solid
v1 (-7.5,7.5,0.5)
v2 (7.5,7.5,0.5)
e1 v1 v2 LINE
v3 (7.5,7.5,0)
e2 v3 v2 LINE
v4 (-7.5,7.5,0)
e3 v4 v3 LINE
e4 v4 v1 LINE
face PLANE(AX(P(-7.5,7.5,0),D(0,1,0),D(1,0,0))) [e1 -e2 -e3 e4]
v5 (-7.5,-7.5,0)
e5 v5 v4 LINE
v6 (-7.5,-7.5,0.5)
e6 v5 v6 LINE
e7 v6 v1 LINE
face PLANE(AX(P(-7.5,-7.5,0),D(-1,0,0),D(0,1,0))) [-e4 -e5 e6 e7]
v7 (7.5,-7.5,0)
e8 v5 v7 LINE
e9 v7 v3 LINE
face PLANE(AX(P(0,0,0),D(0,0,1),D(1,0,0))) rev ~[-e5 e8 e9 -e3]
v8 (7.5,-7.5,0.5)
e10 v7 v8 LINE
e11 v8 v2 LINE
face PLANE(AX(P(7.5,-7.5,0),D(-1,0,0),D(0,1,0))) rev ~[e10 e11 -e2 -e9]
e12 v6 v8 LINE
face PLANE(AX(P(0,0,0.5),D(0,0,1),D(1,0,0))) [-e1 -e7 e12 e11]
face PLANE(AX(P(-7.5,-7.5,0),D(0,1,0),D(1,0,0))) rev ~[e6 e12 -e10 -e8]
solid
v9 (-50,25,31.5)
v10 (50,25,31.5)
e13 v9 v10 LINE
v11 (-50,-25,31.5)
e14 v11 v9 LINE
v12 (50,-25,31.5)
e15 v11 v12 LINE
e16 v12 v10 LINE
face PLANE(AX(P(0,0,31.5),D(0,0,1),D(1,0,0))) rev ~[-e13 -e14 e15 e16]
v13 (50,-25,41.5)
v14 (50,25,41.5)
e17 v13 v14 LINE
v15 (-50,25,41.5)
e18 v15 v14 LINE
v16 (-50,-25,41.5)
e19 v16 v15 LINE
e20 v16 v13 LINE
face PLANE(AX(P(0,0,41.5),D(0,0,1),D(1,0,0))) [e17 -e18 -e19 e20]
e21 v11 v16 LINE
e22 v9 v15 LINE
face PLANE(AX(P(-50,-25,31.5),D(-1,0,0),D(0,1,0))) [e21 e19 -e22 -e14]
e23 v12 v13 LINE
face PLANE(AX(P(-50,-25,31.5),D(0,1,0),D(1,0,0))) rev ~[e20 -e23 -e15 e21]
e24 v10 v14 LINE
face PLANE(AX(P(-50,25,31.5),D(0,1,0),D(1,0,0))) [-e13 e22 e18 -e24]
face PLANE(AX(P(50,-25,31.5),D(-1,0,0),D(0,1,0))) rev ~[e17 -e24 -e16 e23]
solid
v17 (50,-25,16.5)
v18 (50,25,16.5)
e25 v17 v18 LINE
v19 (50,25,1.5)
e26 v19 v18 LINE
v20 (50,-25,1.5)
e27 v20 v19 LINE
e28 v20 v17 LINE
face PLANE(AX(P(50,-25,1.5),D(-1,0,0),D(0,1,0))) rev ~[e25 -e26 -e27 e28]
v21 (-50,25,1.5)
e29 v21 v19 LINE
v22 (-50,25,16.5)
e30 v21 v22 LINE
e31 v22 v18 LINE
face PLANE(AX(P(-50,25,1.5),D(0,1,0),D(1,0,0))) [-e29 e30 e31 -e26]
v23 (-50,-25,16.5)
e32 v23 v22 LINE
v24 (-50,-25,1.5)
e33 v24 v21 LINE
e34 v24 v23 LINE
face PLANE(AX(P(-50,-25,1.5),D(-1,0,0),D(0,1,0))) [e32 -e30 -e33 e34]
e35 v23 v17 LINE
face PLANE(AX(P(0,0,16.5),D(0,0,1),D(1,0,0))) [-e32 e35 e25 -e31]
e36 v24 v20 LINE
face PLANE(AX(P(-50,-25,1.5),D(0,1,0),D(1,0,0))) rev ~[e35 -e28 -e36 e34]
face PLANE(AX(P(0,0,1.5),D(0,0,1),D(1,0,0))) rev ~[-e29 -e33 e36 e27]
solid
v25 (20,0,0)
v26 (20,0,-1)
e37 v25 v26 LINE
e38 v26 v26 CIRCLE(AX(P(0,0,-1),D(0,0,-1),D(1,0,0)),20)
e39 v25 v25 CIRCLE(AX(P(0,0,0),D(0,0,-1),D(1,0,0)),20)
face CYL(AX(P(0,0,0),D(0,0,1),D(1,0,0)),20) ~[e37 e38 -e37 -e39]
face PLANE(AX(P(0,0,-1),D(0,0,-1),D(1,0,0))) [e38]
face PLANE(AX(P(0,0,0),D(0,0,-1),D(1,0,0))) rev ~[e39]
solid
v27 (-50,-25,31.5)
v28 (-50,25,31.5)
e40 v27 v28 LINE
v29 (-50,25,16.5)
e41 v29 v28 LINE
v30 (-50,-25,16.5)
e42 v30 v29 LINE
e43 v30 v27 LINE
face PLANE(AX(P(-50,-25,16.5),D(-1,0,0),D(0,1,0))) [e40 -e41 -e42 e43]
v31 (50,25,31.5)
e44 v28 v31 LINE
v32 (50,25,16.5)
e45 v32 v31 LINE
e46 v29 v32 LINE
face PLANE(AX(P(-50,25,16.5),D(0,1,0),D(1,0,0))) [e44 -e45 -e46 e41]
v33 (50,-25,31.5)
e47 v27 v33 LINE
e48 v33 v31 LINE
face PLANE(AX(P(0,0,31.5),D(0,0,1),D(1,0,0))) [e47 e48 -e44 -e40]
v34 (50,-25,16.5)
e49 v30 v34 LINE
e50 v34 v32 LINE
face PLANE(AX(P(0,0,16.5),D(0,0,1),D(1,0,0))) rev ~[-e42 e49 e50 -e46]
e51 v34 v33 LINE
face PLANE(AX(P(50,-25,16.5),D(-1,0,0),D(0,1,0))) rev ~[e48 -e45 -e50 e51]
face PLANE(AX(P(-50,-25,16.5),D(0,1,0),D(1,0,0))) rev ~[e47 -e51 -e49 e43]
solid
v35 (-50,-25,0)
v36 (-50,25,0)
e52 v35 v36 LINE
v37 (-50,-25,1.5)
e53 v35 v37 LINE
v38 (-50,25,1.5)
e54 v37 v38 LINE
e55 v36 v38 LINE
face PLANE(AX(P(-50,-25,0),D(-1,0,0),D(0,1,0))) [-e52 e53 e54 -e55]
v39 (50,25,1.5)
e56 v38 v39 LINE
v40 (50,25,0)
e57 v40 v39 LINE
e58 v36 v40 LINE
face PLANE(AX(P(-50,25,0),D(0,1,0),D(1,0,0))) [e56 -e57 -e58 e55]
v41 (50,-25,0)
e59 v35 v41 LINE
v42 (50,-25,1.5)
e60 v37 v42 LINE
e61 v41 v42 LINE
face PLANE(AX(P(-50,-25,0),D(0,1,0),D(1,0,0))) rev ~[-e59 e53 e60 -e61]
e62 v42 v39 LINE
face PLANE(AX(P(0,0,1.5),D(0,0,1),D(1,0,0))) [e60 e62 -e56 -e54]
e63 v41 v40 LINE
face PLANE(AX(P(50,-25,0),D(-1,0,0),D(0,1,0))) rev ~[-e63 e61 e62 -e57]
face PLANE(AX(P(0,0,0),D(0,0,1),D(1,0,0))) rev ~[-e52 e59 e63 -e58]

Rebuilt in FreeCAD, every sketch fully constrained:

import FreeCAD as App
import Part
import Sketcher
Q = App.Units.Quantity


def add_polygon(sketch, points):
    """Adds a closed chain of lines whose ends are joined by coincident constraints."""
    first, n = sketch.GeometryCount, len(points)
    for a, b in zip(points, points[1:] + points[:1]):
        sketch.addGeometry(Part.LineSegment(App.Vector(*a, 0), App.Vector(*b, 0)), False)
    for i in range(n):
        sketch.addConstraint(Sketcher.Constraint("Coincident", first + i, 2, first + (i + 1) % n, 1))

doc = App.newDocument("Part")
body = doc.addObject("PartDesign::Body", "Body")

# Sketch on XY plane
sketch1 = doc.addObject("Sketcher::SketchObject", "Sketch")
body.addObject(sketch1)
sketch1.AttachmentSupport = (doc.XY_Plane, [""])
sketch1.MapMode = "FlatFace"
add_polygon(sketch1, [(-8, 8), (-8, -8), (8, -8), (8, 8)])  # lines 0-3
sketch1.addConstraint([
    Sketcher.Constraint("Vertical", 0),
    Sketcher.Constraint("Horizontal", 1),
    Sketcher.Constraint("Vertical", 2),
    Sketcher.Constraint("Horizontal", 3),
    Sketcher.Constraint("Symmetric", 0, 2, 2, 2, -1, 1),
    Sketcher.Constraint("Equal", 3, 0),
    Sketcher.Constraint("DistanceX", 1, 1, 1, 2, Q("15 mm")),
])
pad1 = doc.addObject("PartDesign::Pad", "Pad")
body.addObject(pad1)
pad1.Profile = sketch1
pad1.Length = 0.5
body2 = doc.addObject("PartDesign::Body", "Body001")

# Sketch on XY plane
sketch2 = doc.addObject("Sketcher::SketchObject", "Sketch001")
body2.addObject(sketch2)
sketch2.AttachmentSupport = (doc.getObject("XY_Plane001"), [""])
sketch2.MapMode = "FlatFace"
add_polygon(sketch2, [(-50, 25), (-50, -25), (50, -25), (50, 25)])  # lines 0-3
sketch2.addConstraint([
    Sketcher.Constraint("Vertical", 0),
    Sketcher.Constraint("Horizontal", 1),
    Sketcher.Constraint("Vertical", 2),
    Sketcher.Constraint("Horizontal", 3),
    Sketcher.Constraint("Symmetric", 0, 2, 2, 2, -1, 1),
    Sketcher.Constraint("DistanceX", 1, 1, 1, 2, Q("100 mm")),
    Sketcher.Constraint("DistanceY", 0, 2, 0, 1, Q("50 mm")),
])
pad2 = doc.addObject("PartDesign::Pad", "Pad001")
body2.addObject(pad2)
pad2.Profile = sketch2
pad2.Length = 1.5
body3 = doc.addObject("PartDesign::Body", "Body002")

# Sketch on XY plane
sketch3 = doc.addObject("Sketcher::SketchObject", "Sketch002")
body3.addObject(sketch3)
sketch3.AttachmentSupport = (doc.getObject("XY_Plane002"), [""])
sketch3.MapMode = "FlatFace"
sketch3.AttachmentOffset = App.Placement(App.Vector(0, 0, 1.5), App.Rotation())
add_polygon(sketch3, [(-50, 25), (-50, -25), (50, -25), (50, 25)])  # lines 0-3
sketch3.addConstraint([
    Sketcher.Constraint("Vertical", 0),
    Sketcher.Constraint("Horizontal", 1),
    Sketcher.Constraint("Vertical", 2),
    Sketcher.Constraint("Horizontal", 3),
    Sketcher.Constraint("Symmetric", 0, 2, 2, 2, -1, 1),
    Sketcher.Constraint("DistanceX", 1, 1, 1, 2, Q("100 mm")),
    Sketcher.Constraint("DistanceY", 0, 2, 0, 1, Q("50 mm")),
])
pad3 = doc.addObject("PartDesign::Pad", "Pad002")
body3.addObject(pad3)
pad3.Profile = sketch3
pad3.Length = 15
body4 = doc.addObject("PartDesign::Body", "Body003")

# Sketch on XY plane
sketch4 = doc.addObject("Sketcher::SketchObject", "Sketch003")
body4.addObject(sketch4)
sketch4.AttachmentSupport = (doc.getObject("XY_Plane003"), [""])
sketch4.MapMode = "FlatFace"
sketch4.AttachmentOffset = App.Placement(App.Vector(0, 0, 16.5), App.Rotation())
add_polygon(sketch4, [(-50, 25), (-50, -25), (50, -25), (50, 25)])  # lines 0-3
sketch4.addConstraint([
    Sketcher.Constraint("Vertical", 0),
    Sketcher.Constraint("Horizontal", 1),
    Sketcher.Constraint("Vertical", 2),
    Sketcher.Constraint("Horizontal", 3),
    Sketcher.Constraint("Symmetric", 0, 2, 2, 2, -1, 1),
    Sketcher.Constraint("DistanceX", 1, 1, 1, 2, Q("100 mm")),
    Sketcher.Constraint("DistanceY", 0, 2, 0, 1, Q("50 mm")),
])
pad4 = doc.addObject("PartDesign::Pad", "Pad003")
body4.addObject(pad4)
pad4.Profile = sketch4
pad4.Length = 15
body5 = doc.addObject("PartDesign::Body", "Body004")

# Sketch on XY plane
sketch5 = doc.addObject("Sketcher::SketchObject", "Sketch004")
body5.addObject(sketch5)
sketch5.AttachmentSupport = (doc.getObject("XY_Plane004"), [""])
sketch5.MapMode = "FlatFace"
sketch5.AttachmentOffset = App.Placement(App.Vector(0, 0, 31.5), App.Rotation())
add_polygon(sketch5, [(-50, 25), (-50, -25), (50, -25), (50, 25)])  # lines 0-3
sketch5.addConstraint([
    Sketcher.Constraint("Vertical", 0),
    Sketcher.Constraint("Horizontal", 1),
    Sketcher.Constraint("Vertical", 2),
    Sketcher.Constraint("Horizontal", 3),
    Sketcher.Constraint("Symmetric", 0, 2, 2, 2, -1, 1),
    Sketcher.Constraint("DistanceX", 1, 1, 1, 2, Q("100 mm")),
    Sketcher.Constraint("DistanceY", 0, 2, 0, 1, Q("50 mm")),
])
pad5 = doc.addObject("PartDesign::Pad", "Pad004")
body5.addObject(pad5)
pad5.Profile = sketch5
pad5.Length = 10
body6 = doc.addObject("PartDesign::Body", "Body005")

# Sketch on XY plane
sketch6 = doc.addObject("Sketcher::SketchObject", "Sketch005")
body6.addObject(sketch6)
sketch6.AttachmentSupport = (doc.getObject("XY_Plane005"), [""])
sketch6.MapMode = "FlatFace"
sketch6.addGeometry(Part.Circle(App.Vector(0, 0, 0), App.Vector(0, 0, 1), 20), False)
sketch6.addConstraint([
    Sketcher.Constraint("Coincident", 0, 3, -1, 1),
    Sketcher.Constraint("Diameter", 0, Q("40 mm")),
])
pad6 = doc.addObject("PartDesign::Pad", "Pad005")
body6.addObject(pad6)
pad6.Profile = sketch6
pad6.Length = 1
pad6.Reversed = True

doc.recompute()
